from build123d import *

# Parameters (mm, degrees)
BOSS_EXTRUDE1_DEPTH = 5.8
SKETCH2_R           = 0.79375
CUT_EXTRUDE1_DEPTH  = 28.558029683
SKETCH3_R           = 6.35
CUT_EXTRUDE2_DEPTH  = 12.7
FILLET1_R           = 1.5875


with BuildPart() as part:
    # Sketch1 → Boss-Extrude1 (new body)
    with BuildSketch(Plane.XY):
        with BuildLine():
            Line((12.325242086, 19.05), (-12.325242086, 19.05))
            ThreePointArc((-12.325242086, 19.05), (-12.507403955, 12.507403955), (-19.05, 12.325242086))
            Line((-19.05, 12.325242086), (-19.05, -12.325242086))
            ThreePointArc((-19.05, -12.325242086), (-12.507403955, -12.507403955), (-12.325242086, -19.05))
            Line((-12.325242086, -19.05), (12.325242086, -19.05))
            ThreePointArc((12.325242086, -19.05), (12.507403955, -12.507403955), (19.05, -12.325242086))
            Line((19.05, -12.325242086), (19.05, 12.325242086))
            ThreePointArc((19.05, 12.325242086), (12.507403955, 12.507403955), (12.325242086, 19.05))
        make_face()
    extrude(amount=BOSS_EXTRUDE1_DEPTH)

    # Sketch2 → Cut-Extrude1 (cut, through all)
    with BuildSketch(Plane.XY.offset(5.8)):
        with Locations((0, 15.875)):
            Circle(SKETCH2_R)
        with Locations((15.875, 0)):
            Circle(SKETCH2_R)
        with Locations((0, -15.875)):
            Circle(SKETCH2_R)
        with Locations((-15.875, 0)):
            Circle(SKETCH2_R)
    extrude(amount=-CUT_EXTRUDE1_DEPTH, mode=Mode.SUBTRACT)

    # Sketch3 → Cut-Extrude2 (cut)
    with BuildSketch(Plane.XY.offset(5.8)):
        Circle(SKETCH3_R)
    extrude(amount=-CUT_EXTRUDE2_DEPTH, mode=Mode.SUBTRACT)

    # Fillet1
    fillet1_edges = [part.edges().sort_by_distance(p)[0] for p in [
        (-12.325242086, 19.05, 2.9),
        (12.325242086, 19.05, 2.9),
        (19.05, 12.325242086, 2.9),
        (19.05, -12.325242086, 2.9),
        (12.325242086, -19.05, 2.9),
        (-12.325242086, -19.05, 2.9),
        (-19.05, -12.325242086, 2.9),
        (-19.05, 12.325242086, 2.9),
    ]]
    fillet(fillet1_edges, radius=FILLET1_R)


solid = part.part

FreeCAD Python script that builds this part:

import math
import FreeCAD as App
import Part
import Sketcher
Q = App.Units.Quantity


def edges_at(feature, points):
    """Names of the edges that pass closest to the given points."""
    edges = feature.Shape.Edges
    near = lambda p: min(range(len(edges)), key=lambda i: edges[i].distToShape(Part.Vertex(*p))[0])
    return sorted({f"Edge{near(p) + 1}" for p in points})

doc = App.newDocument("Part")
params = doc.addObject("Spreadsheet::Sheet", "Params")
for row, (alias, value) in enumerate([
    ("sketch1_radius", "0.1875 in"),
    ("pad1_length", "5.8 mm"),
    ("sketch2_diameter", "0.0625 in"),
    ("sketch3_diameter", "0.5 in"),
    ("pocket2_length", "0.5 in"),
    ("fillet_radius", "0.0625 in"),
], start=1):
    params.set(f"A{row}", alias)
    params.set(f"B{row}", "=" + value)
    params.setAlias(f"B{row}", alias)

body = doc.addObject("PartDesign::Body", "Body")

sketch1 = doc.addObject("Sketcher::SketchObject", "Sketch")
body.addObject(sketch1)
sketch1.AttachmentSupport = (doc.XY_Plane, [""])
sketch1.MapMode = "FlatFace"
sketch1.addGeometry(Part.LineSegment(App.Vector(12.325242, 19.05, 0), App.Vector(-12.325242, 19.05, 0)), False)
sketch1.addGeometry(Part.ArcOfCircle(Part.Circle(App.Vector(-15.875, 15.875, 0), App.Vector(0, 0, 1), 4.7625), math.radians(-131.810315), math.radians(41.810315)), False)
sketch1.addGeometry(Part.LineSegment(App.Vector(-19.05, 12.325242, 0), App.Vector(-19.05, -12.325242, 0)), False)
sketch1.addGeometry(Part.ArcOfCircle(Part.Circle(App.Vector(-15.875, -15.875, 0), App.Vector(0, 0, 1), 4.7625), math.radians(-41.810315), math.radians(131.810315)), False)
sketch1.addGeometry(Part.LineSegment(App.Vector(-12.325242, -19.05, 0), App.Vector(12.325242, -19.05, 0)), False)
sketch1.addGeometry(Part.ArcOfCircle(Part.Circle(App.Vector(15.875, -15.875, 0), App.Vector(0, 0, 1), 4.7625), math.radians(48.189685), math.radians(221.810315)), False)
sketch1.addGeometry(Part.LineSegment(App.Vector(19.05, -12.325242, 0), App.Vector(19.05, 12.325242, 0)), False)
sketch1.addGeometry(Part.ArcOfCircle(Part.Circle(App.Vector(15.875, 15.875, 0), App.Vector(0, 0, 1), 4.7625), math.radians(138.189685), math.radians(311.810315)), False)
sketch1.addConstraint(Sketcher.Constraint("Coincident", 0, 2, 1, 2))
sketch1.addConstraint(Sketcher.Constraint("Coincident", 1, 1, 2, 1))
sketch1.addConstraint(Sketcher.Constraint("Coincident", 2, 2, 3, 2))
sketch1.addConstraint(Sketcher.Constraint("Coincident", 3, 1, 4, 1))
sketch1.addConstraint(Sketcher.Constraint("Coincident", 4, 2, 5, 2))
sketch1.addConstraint(Sketcher.Constraint("Coincident", 5, 1, 6, 1))
sketch1.addConstraint(Sketcher.Constraint("Coincident", 6, 2, 7, 2))
sketch1.addConstraint(Sketcher.Constraint("Coincident", 7, 1, 0, 1))
sketch1.addConstraint(Sketcher.Constraint("Horizontal", 0))
sketch1.addConstraint(Sketcher.Constraint("Vertical", 2))
sketch1.addConstraint(Sketcher.Constraint("Horizontal", 4))
sketch1.addConstraint(Sketcher.Constraint("Vertical", 6))
sketch1.addConstraint(Sketcher.Constraint("Equal", 1, 3))
sketch1.addConstraint(Sketcher.Constraint("Equal", 3, 5))
sketch1.addConstraint(Sketcher.Constraint("Equal", 5, 7))
sketch1.addConstraint(Sketcher.Constraint("Symmetric", 1, 3, 5, 3, -1, 1))
sketch1.addConstraint(Sketcher.Constraint("Symmetric", 3, 3, 7, 3, -1, 1))
sketch1.addConstraint(Sketcher.Constraint("Symmetric", 3, 3, 5, 3, -2))
sketch1.addConstraint(Sketcher.Constraint("Horizontal", 2, 2, 5, 1))
sketch1.addConstraint(Sketcher.Constraint("Vertical", 0, 2, 3, 1))
sketch1.addConstraint(Sketcher.Constraint("Equal", 4, 2))
sketch1.addConstraint(Sketcher.Constraint("Radius", 1, Q("0.1875 in")))
sketch1.addConstraint(Sketcher.Constraint("DistanceY", -1, 1, 0, 2, Q("0.75 in")))
sketch1.addConstraint(Sketcher.Constraint("DistanceX", 1, 1, -1, 1, Q("0.75 in")))
sketch1.addConstraint(Sketcher.Constraint("DistanceY", 3, 3, 1, 3, Q("1.25 in")))
sketch1.setExpression("Constraints[21]", "Params.sketch1_radius")
pad1 = doc.addObject("PartDesign::Pad", "Pad")
body.addObject(pad1)
pad1.Profile = sketch1
pad1.setExpression("Length", "Params.pad1_length")

sketch2 = doc.addObject("Sketcher::SketchObject", "Sketch001")
body.addObject(sketch2)
sketch2.AttachmentSupport = (doc.XY_Plane, [""])
sketch2.MapMode = "FlatFace"
sketch2.AttachmentOffset = App.Placement(App.Vector(0, 0, 5.8), App.Rotation())
sketch2.addGeometry(Part.Circle(App.Vector(0, 15.875, 0), App.Vector(0, 0, 1), 0.79375), False)
sketch2.addGeometry(Part.Circle(App.Vector(15.875, 0, 0), App.Vector(0, 0, 1), 0.79375), False)
sketch2.addGeometry(Part.Circle(App.Vector(0, -15.875, 0), App.Vector(0, 0, 1), 0.79375), False)
sketch2.addGeometry(Part.Circle(App.Vector(-15.875, 0, 0), App.Vector(0, 0, 1), 0.79375), False)
sketch2.addConstraint(Sketcher.Constraint("Equal", 0, 1))
sketch2.addConstraint(Sketcher.Constraint("Equal", 1, 2))
sketch2.addConstraint(Sketcher.Constraint("Equal", 2, 3))
sketch2.addConstraint(Sketcher.Constraint("Symmetric", 0, 3, 2, 3, -1, 1))
sketch2.addConstraint(Sketcher.Constraint("Symmetric", 1, 3, 3, 3, -1, 1))
sketch2.addConstraint(Sketcher.Constraint("PointOnObject", 0, 3, -2))
sketch2.addConstraint(Sketcher.Constraint("PointOnObject", 1, 3, -1))
sketch2.addConstraint(Sketcher.Constraint("Diameter", 0, Q("0.0625 in")))
sketch2.addConstraint(Sketcher.Constraint("DistanceY", 2, 3, 0, 3, Q("1.25 in")))
sketch2.addConstraint(Sketcher.Constraint("DistanceX", 3, 3, 1, 3, Q("1.25 in")))
sketch2.setExpression("Constraints[7]", "Params.sketch2_diameter")
pocket1 = doc.addObject("PartDesign::Pocket", "Pocket")
body.addObject(pocket1)
pocket1.Profile = sketch2
pocket1.Type = "ThroughAll"

sketch3 = doc.addObject("Sketcher::SketchObject", "Sketch002")
body.addObject(sketch3)
sketch3.AttachmentSupport = (doc.XY_Plane, [""])
sketch3.MapMode = "FlatFace"
sketch3.AttachmentOffset = App.Placement(App.Vector(0, 0, 5.8), App.Rotation())
sketch3.addGeometry(Part.Circle(App.Vector(0, 0, 0), App.Vector(0, 0, 1), 6.35), False)
sketch3.addConstraint(Sketcher.Constraint("Coincident", 0, 3, -1, 1))
sketch3.addConstraint(Sketcher.Constraint("Diameter", 0, Q("0.5 in")))
sketch3.setExpression("Constraints[1]", "Params.sketch3_diameter")
pocket2 = doc.addObject("PartDesign::Pocket", "Pocket001")
body.addObject(pocket2)
pocket2.Profile = sketch3
pocket2.setExpression("Length", "Params.pocket2_length")
doc.recompute()

fillet = doc.addObject("PartDesign::Fillet", "Fillet")
body.addObject(fillet)
fillet.Base = (pocket2, edges_at(pocket2, [
    (-12.325, 19.05, 2.9),
    (12.325, 19.05, 2.9),
    (19.05, 12.325, 2.9),
    (19.05, -12.325, 2.9),
    (12.325, -19.05, 2.9),
    (-12.325, -19.05, 2.9),
    (-19.05, -12.325, 2.9),
    (-19.05, 12.325, 2.9),
]))
fillet.setExpression("Radius", "Params.fillet_radius")

doc.recompute()
